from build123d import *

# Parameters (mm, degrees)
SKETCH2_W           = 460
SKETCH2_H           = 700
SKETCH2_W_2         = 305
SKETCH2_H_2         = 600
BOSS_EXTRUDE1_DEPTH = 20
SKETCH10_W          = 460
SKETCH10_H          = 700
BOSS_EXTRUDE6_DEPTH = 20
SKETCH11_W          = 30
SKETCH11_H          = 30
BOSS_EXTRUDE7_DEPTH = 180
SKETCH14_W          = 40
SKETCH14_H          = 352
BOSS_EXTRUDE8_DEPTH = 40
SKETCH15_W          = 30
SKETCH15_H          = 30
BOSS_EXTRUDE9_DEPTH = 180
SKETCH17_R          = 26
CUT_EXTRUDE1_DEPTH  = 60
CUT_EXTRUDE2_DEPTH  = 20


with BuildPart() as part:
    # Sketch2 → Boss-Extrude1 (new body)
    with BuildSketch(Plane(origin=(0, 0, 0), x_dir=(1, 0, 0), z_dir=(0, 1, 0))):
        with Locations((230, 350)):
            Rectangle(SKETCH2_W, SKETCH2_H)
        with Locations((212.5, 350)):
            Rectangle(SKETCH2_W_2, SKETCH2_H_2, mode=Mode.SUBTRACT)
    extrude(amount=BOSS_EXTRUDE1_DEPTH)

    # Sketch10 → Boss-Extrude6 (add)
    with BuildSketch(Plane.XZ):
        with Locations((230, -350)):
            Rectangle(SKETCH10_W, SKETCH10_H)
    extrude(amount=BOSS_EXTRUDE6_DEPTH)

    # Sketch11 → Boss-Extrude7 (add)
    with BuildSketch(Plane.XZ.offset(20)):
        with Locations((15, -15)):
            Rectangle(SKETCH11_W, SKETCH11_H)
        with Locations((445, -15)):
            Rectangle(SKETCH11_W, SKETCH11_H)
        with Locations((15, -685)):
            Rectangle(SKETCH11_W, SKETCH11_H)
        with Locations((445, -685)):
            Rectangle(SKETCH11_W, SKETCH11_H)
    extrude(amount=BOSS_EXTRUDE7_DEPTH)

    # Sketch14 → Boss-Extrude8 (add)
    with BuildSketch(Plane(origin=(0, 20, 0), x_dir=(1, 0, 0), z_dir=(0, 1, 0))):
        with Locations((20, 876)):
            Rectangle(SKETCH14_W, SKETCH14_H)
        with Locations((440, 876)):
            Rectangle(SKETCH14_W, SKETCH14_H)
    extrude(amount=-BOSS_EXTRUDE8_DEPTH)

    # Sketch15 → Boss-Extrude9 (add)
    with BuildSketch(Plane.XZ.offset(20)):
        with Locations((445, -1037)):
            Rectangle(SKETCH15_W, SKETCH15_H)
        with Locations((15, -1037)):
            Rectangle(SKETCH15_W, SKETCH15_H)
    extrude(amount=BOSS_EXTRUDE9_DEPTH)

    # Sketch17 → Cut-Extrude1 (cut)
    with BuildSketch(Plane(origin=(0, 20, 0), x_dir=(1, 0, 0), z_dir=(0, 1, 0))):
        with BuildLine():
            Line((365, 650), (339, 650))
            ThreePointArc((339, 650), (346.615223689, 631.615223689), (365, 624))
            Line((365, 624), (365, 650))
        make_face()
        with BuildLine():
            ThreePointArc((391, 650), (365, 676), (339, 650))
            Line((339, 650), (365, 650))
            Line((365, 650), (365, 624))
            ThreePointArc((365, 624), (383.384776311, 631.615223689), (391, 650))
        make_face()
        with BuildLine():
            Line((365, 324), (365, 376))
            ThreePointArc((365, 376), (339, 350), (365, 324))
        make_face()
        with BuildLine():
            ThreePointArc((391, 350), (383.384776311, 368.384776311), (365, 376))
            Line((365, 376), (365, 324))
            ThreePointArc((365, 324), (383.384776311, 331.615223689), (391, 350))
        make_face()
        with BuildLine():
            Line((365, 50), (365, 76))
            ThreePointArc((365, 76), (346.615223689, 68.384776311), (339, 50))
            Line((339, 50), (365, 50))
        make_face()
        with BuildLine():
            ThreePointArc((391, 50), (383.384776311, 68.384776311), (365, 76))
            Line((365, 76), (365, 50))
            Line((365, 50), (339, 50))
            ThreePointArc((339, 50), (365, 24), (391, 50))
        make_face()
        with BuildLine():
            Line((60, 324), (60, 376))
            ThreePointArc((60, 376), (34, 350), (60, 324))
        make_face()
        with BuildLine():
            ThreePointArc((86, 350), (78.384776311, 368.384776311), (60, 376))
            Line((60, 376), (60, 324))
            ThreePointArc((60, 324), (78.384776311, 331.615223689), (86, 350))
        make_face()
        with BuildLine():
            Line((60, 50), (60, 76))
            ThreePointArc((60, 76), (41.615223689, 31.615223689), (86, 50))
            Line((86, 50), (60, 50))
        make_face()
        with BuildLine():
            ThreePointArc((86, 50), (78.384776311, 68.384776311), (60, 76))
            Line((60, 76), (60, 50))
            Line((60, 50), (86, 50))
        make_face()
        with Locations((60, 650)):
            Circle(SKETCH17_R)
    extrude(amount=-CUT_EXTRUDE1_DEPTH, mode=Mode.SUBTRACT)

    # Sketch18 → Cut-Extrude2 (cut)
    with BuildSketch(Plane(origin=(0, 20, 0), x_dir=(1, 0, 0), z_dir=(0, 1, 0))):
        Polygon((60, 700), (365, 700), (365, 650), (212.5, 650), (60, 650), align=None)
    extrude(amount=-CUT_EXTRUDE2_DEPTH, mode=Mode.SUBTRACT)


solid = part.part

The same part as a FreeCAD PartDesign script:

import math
import FreeCAD as App
import Part
import Sketcher
Q = App.Units.Quantity


def add_polygon(sketch, points):
    """Adds a closed chain of lines whose ends are joined by coincident constraints."""
    first, n = sketch.GeometryCount, len(points)
    for a, b in zip(points, points[1:] + points[:1]):
        sketch.addGeometry(Part.LineSegment(App.Vector(*a, 0), App.Vector(*b, 0)), False)
    for i in range(n):
        sketch.addConstraint(Sketcher.Constraint("Coincident", first + i, 2, first + (i + 1) % n, 1))

doc = App.newDocument("Part")
body = doc.addObject("PartDesign::Body", "Body")

sketch1 = body.newObject("Sketcher::SketchObject", "Sketch")
sketch1.AttachmentSupport = (doc.getObject("XZ_Plane"), [""])
sketch1.MapMode = "FlatFace"
add_polygon(sketch1, [(0, -700), (0, 0), (460, 0), (460, -700)])
add_polygon(sketch1, [(365, -50), (60, -50), (60, -650), (365, -650)])
sketch1.addConstraint(Sketcher.Constraint("Vertical", 0))
sketch1.addConstraint(Sketcher.Constraint("Horizontal", 1))
sketch1.addConstraint(Sketcher.Constraint("Vertical", 2))
sketch1.addConstraint(Sketcher.Constraint("Horizontal", 3))
sketch1.addConstraint(Sketcher.Constraint("Horizontal", 4))
sketch1.addConstraint(Sketcher.Constraint("Vertical", 5))
sketch1.addConstraint(Sketcher.Constraint("Horizontal", 6))
sketch1.addConstraint(Sketcher.Constraint("Vertical", 7))
sketch1.addConstraint(Sketcher.Constraint("Coincident", 0, 2, -1, 1))
sketch1.addConstraint(Sketcher.Constraint("DistanceX", 1, 1, 1, 2, Q("460 mm")))
sketch1.addConstraint(Sketcher.Constraint("DistanceX", 4, 2, 4, 1, Q("305 mm")))
sketch1.addConstraint(Sketcher.Constraint("DistanceY", 0, 1, 0, 2, Q("700 mm")))
sketch1.addConstraint(Sketcher.Constraint("DistanceY", 5, 2, 5, 1, Q("600 mm")))
sketch1.addConstraint(Sketcher.Constraint("DistanceX", -1, 1, 4, 2, Q("60 mm")))
sketch1.addConstraint(Sketcher.Constraint("DistanceY", 4, 2, -1, 1, Q("50 mm")))
pad1 = body.newObject("PartDesign::Pad", "Pad")
pad1.Profile = sketch1
pad1.Length = 20
pad1.Reversed = True

sketch2 = body.newObject("Sketcher::SketchObject", "Sketch001")
sketch2.AttachmentSupport = (doc.getObject("XZ_Plane"), [""])
sketch2.MapMode = "FlatFace"
add_polygon(sketch2, [(0, 0), (0, -700), (460, -700), (460, 0)])
sketch2.addConstraint(Sketcher.Constraint("Vertical", 0))
sketch2.addConstraint(Sketcher.Constraint("Horizontal", 1))
sketch2.addConstraint(Sketcher.Constraint("Vertical", 2))
sketch2.addConstraint(Sketcher.Constraint("Horizontal", 3))
sketch2.addConstraint(Sketcher.Constraint("Coincident", 3, 2, -1, 1))
sketch2.addConstraint(Sketcher.Constraint("DistanceX", 1, 1, 1, 2, Q("460 mm")))
sketch2.addConstraint(Sketcher.Constraint("DistanceY", 0, 2, 0, 1, Q("700 mm")))
pad2 = body.newObject("PartDesign::Pad", "Pad001")
pad2.Profile = sketch2
pad2.Length = 20

sketch3 = body.newObject("Sketcher::SketchObject", "Sketch002")
sketch3.AttachmentSupport = (doc.getObject("XZ_Plane"), [""])
sketch3.MapMode = "FlatFace"
sketch3.AttachmentOffset = App.Placement(App.Vector(0, 0, 20), App.Rotation())
add_polygon(sketch3, [(0, 0), (0, -30), (30, -30), (30, 0)])
add_polygon(sketch3, [(430, 0), (430, -30), (460, -30), (460, 0)])
add_polygon(sketch3, [(0, -670), (0, -700), (30, -700), (30, -670)])
add_polygon(sketch3, [(430, -670), (430, -700), (460, -700), (460, -670)])
sketch3.addConstraint(Sketcher.Constraint("Vertical", 0))
sketch3.addConstraint(Sketcher.Constraint("Horizontal", 1))
sketch3.addConstraint(Sketcher.Constraint("Vertical", 2))
sketch3.addConstraint(Sketcher.Constraint("Horizontal", 3))
sketch3.addConstraint(Sketcher.Constraint("Vertical", 4))
sketch3.addConstraint(Sketcher.Constraint("Horizontal", 5))
sketch3.addConstraint(Sketcher.Constraint("Vertical", 6))
sketch3.addConstraint(Sketcher.Constraint("Horizontal", 7))
sketch3.addConstraint(Sketcher.Constraint("Vertical", 8))
sketch3.addConstraint(Sketcher.Constraint("Horizontal", 9))
sketch3.addConstraint(Sketcher.Constraint("Vertical", 10))
sketch3.addConstraint(Sketcher.Constraint("Horizontal", 11))
sketch3.addConstraint(Sketcher.Constraint("Vertical", 12))
sketch3.addConstraint(Sketcher.Constraint("Horizontal", 13))
sketch3.addConstraint(Sketcher.Constraint("Vertical", 14))
sketch3.addConstraint(Sketcher.Constraint("Horizontal", 15))
sketch3.addConstraint(Sketcher.Constraint("Coincident", 3, 2, -1, 1))
sketch3.addConstraint(Sketcher.Constraint("PointOnObject", 6, 2, -1))
sketch3.addConstraint(Sketcher.Constraint("PointOnObject", 8, 2, -2))
sketch3.addConstraint(Sketcher.Constraint("Horizontal", 1, 2, 4, 2))
sketch3.addConstraint(Sketcher.Constraint("Horizontal", 9, 2, 12, 2))
sketch3.addConstraint(Sketcher.Constraint("Horizontal", 11, 2, 14, 2))
sketch3.addConstraint(Sketcher.Constraint("Vertical", 2, 2, 9, 2))
sketch3.addConstraint(Sketcher.Constraint("Vertical", 7, 2, 12, 2))
sketch3.addConstraint(Sketcher.Constraint("Vertical", 6, 2, 13, 2))
sketch3.addConstraint(Sketcher.Constraint("Equal", 3, 5))
sketch3.addConstraint(Sketcher.Constraint("Equal", 15, 0))
sketch3.addConstraint(Sketcher.Constraint("Equal", 6, 8))
sketch3.addConstraint(Sketcher.Constraint("DistanceX", 1, 1, 1, 2, Q("30 mm")))
sketch3.addConstraint(Sketcher.Constraint("DistanceX", -1, 1, 4, 2, Q("430 mm")))
sketch3.addConstraint(Sketcher.Constraint("DistanceY", 8, 2, -1, 1, Q("700 mm")))
pad3 = body.newObject("PartDesign::Pad", "Pad002")
pad3.Profile = sketch3
pad3.Length = 180

sketch4 = body.newObject("Sketcher::SketchObject", "Sketch003")
sketch4.AttachmentSupport = (doc.getObject("XZ_Plane"), [""])
sketch4.MapMode = "FlatFace"
sketch4.AttachmentOffset = App.Placement(App.Vector(0, 0, -20), App.Rotation())
add_polygon(sketch4, [(0, -1052), (0, -700), (40, -700), (40, -1052)])
add_polygon(sketch4, [(420, -1052), (420, -700), (460, -700), (460, -1052)])
sketch4.addConstraint(Sketcher.Constraint("Vertical", 0))
sketch4.addConstraint(Sketcher.Constraint("Horizontal", 1))
sketch4.addConstraint(Sketcher.Constraint("Vertical", 2))
sketch4.addConstraint(Sketcher.Constraint("Horizontal", 3))
sketch4.addConstraint(Sketcher.Constraint("Vertical", 4))
sketch4.addConstraint(Sketcher.Constraint("Horizontal", 5))
sketch4.addConstraint(Sketcher.Constraint("Vertical", 6))
sketch4.addConstraint(Sketcher.Constraint("Horizontal", 7))
sketch4.addConstraint(Sketcher.Constraint("PointOnObject", 0, 2, -2))
sketch4.addConstraint(Sketcher.Constraint("Horizontal", 1, 2, 4, 2))
sketch4.addConstraint(Sketcher.Constraint("Horizontal", 3, 2, 6, 2))
sketch4.addConstraint(Sketcher.Constraint("Equal", 3, 5))
sketch4.addConstraint(Sketcher.Constraint("DistanceX", 1, 1, 1, 2, Q("40 mm")))
sketch4.addConstraint(Sketcher.Constraint("DistanceY", 0, 1, 0, 2, Q("352 mm")))
sketch4.addConstraint(Sketcher.Constraint("DistanceY", 0, 2, -1, 1, Q("700 mm")))
sketch4.addConstraint(Sketcher.Constraint("DistanceX", -1, 1, 4, 2, Q("420 mm")))
pad4 = body.newObject("PartDesign::Pad", "Pad003")
pad4.Profile = sketch4
pad4.Length = 40

sketch5 = body.newObject("Sketcher::SketchObject", "Sketch004")
sketch5.AttachmentSupport = (doc.getObject("XZ_Plane"), [""])
sketch5.MapMode = "FlatFace"
sketch5.AttachmentOffset = App.Placement(App.Vector(0, 0, 20), App.Rotation())
add_polygon(sketch5, [(430, -1022), (430, -1052), (460, -1052), (460, -1022)])
add_polygon(sketch5, [(0, -1022), (0, -1052), (30, -1052), (30, -1022)])
sketch5.addConstraint(Sketcher.Constraint("Vertical", 0))
sketch5.addConstraint(Sketcher.Constraint("Horizontal", 1))
sketch5.addConstraint(Sketcher.Constraint("Vertical", 2))
sketch5.addConstraint(Sketcher.Constraint("Horizontal", 3))
sketch5.addConstraint(Sketcher.Constraint("Vertical", 4))
sketch5.addConstraint(Sketcher.Constraint("Horizontal", 5))
sketch5.addConstraint(Sketcher.Constraint("Vertical", 6))
sketch5.addConstraint(Sketcher.Constraint("Horizontal", 7))
sketch5.addConstraint(Sketcher.Constraint("PointOnObject", 4, 2, -2))
sketch5.addConstraint(Sketcher.Constraint("Horizontal", 1, 2, 4, 2))
sketch5.addConstraint(Sketcher.Constraint("Horizontal", 3, 2, 6, 2))
sketch5.addConstraint(Sketcher.Constraint("Equal", 3, 5))
sketch5.addConstraint(Sketcher.Constraint("Equal", 7, 0))
sketch5.addConstraint(Sketcher.Constraint("DistanceX", 1, 1, 1, 2, Q("30 mm")))
sketch5.addConstraint(Sketcher.Constraint("DistanceX", -1, 1, 0, 2, Q("430 mm")))
sketch5.addConstraint(Sketcher.Constraint("DistanceY", 0, 2, -1, 1, Q("1052 mm")))
pad5 = body.newObject("PartDesign::Pad", "Pad004")
pad5.Profile = sketch5
pad5.Length = 180

sketch6 = body.newObject("Sketcher::SketchObject", "Sketch005")
sketch6.AttachmentSupport = (doc.getObject("XZ_Plane"), [""])
sketch6.MapMode = "FlatFace"
sketch6.AttachmentOffset = App.Placement(App.Vector(0, 0, -20), App.Rotation())
sketch6.addGeometry(Part.ArcOfCircle(Part.Circle(App.Vector(365, -650, 0), App.Vector(0, 0, 1), 26), math.radians(90), math.radians(180)), False)
sketch6.addGeometry(Part.ArcOfCircle(Part.Circle(App.Vector(365, -650, 0), App.Vector(0, 0, 1), 26), math.radians(0), math.radians(90)), False)
sketch6.addGeometry(Part.ArcOfCircle(Part.Circle(App.Vector(365, -650, 0), App.Vector(0, 0, 1), 26), math.radians(180), math.radians(360)), False)
sketch6.addGeometry(Part.ArcOfCircle(Part.Circle(App.Vector(365, -350, 0), App.Vector(0, 0, 1), 26), math.radians(90), math.radians(270)), False)
sketch6.addGeometry(Part.ArcOfCircle(Part.Circle(App.Vector(365, -350, 0), App.Vector(0, 0, 1), 26), math.radians(0), math.radians(90)), False)
sketch6.addGeometry(Part.ArcOfCircle(Part.Circle(App.Vector(365, -350, 0), App.Vector(0, 0, 1), 26), math.radians(-90), math.radians(0)), False)
sketch6.addGeometry(Part.ArcOfCircle(Part.Circle(App.Vector(365, -50, 0), App.Vector(0, 0, 1), 26), math.radians(180), math.radians(270)), False)
sketch6.addGeometry(Part.ArcOfCircle(Part.Circle(App.Vector(365, -50, 0), App.Vector(0, 0, 1), 26), math.radians(0), math.radians(180)), False)
sketch6.addGeometry(Part.ArcOfCircle(Part.Circle(App.Vector(365, -50, 0), App.Vector(0, 0, 1), 26), math.radians(-90), math.radians(0)), False)
sketch6.addGeometry(Part.ArcOfCircle(Part.Circle(App.Vector(60, -350, 0), App.Vector(0, 0, 1), 26), math.radians(90), math.radians(270)), False)
sketch6.addGeometry(Part.ArcOfCircle(Part.Circle(App.Vector(60, -350, 0), App.Vector(0, 0, 1), 26), math.radians(0), math.radians(90)), False)
sketch6.addGeometry(Part.ArcOfCircle(Part.Circle(App.Vector(60, -350, 0), App.Vector(0, 0, 1), 26), math.radians(-90), math.radians(0)), False)
sketch6.addGeometry(Part.ArcOfCircle(Part.Circle(App.Vector(60, -50, 0), App.Vector(0, 0, 1), 26), math.radians(0), math.radians(270)), False)
sketch6.addGeometry(Part.ArcOfCircle(Part.Circle(App.Vector(60, -50, 0), App.Vector(0, 0, 1), 26), math.radians(-90), math.radians(0)), False)
sketch6.addGeometry(Part.Circle(App.Vector(60, -650, 0), App.Vector(0, 0, 1), 26), False)
sketch6.addConstraint(Sketcher.Constraint("Tangent", 0, 1, 1, 2))
sketch6.addConstraint(Sketcher.Constraint("Tangent", 1, 1, 2, 2))
sketch6.addConstraint(Sketcher.Constraint("Tangent", 2, 1, 0, 2))
sketch6.addConstraint(Sketcher.Constraint("Tangent", 3, 1, 4, 2))
sketch6.addConstraint(Sketcher.Constraint("Tangent", 4, 1, 5, 2))
sketch6.addConstraint(Sketcher.Constraint("Tangent", 5, 1, 3, 2))
sketch6.addConstraint(Sketcher.Constraint("Tangent", 6, 1, 7, 2))
sketch6.addConstraint(Sketcher.Constraint("Tangent", 7, 1, 8, 2))
sketch6.addConstraint(Sketcher.Constraint("Tangent", 8, 1, 6, 2))
sketch6.addConstraint(Sketcher.Constraint("Tangent", 9, 1, 10, 2))
sketch6.addConstraint(Sketcher.Constraint("Tangent", 10, 1, 11, 2))
sketch6.addConstraint(Sketcher.Constraint("Tangent", 11, 1, 9, 2))
sketch6.addConstraint(Sketcher.Constraint("Tangent", 12, 1, 13, 2))
sketch6.addConstraint(Sketcher.Constraint("Coincident", 13, 1, 12, 2))
sketch6.addConstraint(Sketcher.Constraint("Equal", 2, 3))
sketch6.addConstraint(Sketcher.Constraint("Equal", 5, 6))
sketch6.addConstraint(Sketcher.Constraint("Equal", 8, 9))
sketch6.addConstraint(Sketcher.Constraint("Equal", 11, 12))
sketch6.addConstraint(Sketcher.Constraint("Equal", 13, 14))
sketch6.addConstraint(Sketcher.Constraint("Horizontal", 5, 3, 9, 3))
sketch6.addConstraint(Sketcher.Constraint("Horizontal", 8, 3, 12, 3))
sketch6.addConstraint(Sketcher.Constraint("Horizontal", 2, 3, 14, 3))
sketch6.addConstraint(Sketcher.Constraint("Horizontal", 14, 3, 1, 1))
sketch6.addConstraint(Sketcher.Constraint("Horizontal", 1, 1, 2, 1))
sketch6.addConstraint(Sketcher.Constraint("Horizontal", 11, 3, 4, 1))
sketch6.addConstraint(Sketcher.Constraint("Horizontal", 13, 3, 6, 1))
sketch6.addConstraint(Sketcher.Constraint("Horizontal", 6, 1, 7, 1))
sketch6.addConstraint(Sketcher.Constraint("Horizontal", 4, 1, 10, 1))
sketch6.addConstraint(Sketcher.Constraint("Horizontal", 7, 1, 12, 1))
sketch6.addConstraint(Sketcher.Constraint("Vertical", 2, 3, 3, 3))
sketch6.addConstraint(Sketcher.Constraint("Vertical", 5, 3, 6, 3))
sketch6.addConstraint(Sketcher.Constraint("Vertical", 11, 3, 12, 3))
sketch6.addConstraint(Sketcher.Constraint("Vertical", 13, 3, 14, 3))
sketch6.addConstraint(Sketcher.Constraint("Vertical", 8, 3, 0, 1))
sketch6.addConstraint(Sketcher.Constraint("Vertical", 0, 1, 3, 1))
sketch6.addConstraint(Sketcher.Constraint("Vertical", 3, 1, 5, 1))
sketch6.addConstraint(Sketcher.Constraint("Vertical", 5, 1, 8, 1))
sketch6.addConstraint(Sketcher.Constraint("Vertical", 14, 3, 9, 1))
sketch6.addConstraint(Sketcher.Constraint("Vertical", 9, 1, 11, 1))
sketch6.addConstraint(Sketcher.Constraint("Vertical", 11, 1, 13, 1))
sketch6.addConstraint(Sketcher.Constraint("Diameter", 14, Q("52 mm")))
sketch6.addConstraint(Sketcher.Constraint("DistanceX", -1, 1, 0, 3, Q("365 mm")))
sketch6.addConstraint(Sketcher.Constraint("DistanceY", 0, 3, -1, 1, Q("650 mm")))
sketch6.addConstraint(Sketcher.Constraint("DistanceY", 3, 3, -1, 1, Q("350 mm")))
sketch6.addConstraint(Sketcher.Constraint("DistanceY", 6, 3, -1, 1, Q("50 mm")))
sketch6.addConstraint(Sketcher.Constraint("DistanceX", -1, 1, 9, 3, Q("60 mm")))
pocket1 = body.newObject("PartDesign::Pocket", "Pocket")
pocket1.Profile = sketch6
pocket1.Length = 60
pocket1.Reversed = True

sketch7 = body.newObject("Sketcher::SketchObject", "Sketch006")
sketch7.AttachmentSupport = (doc.getObject("XZ_Plane"), [""])
sketch7.MapMode = "FlatFace"
sketch7.AttachmentOffset = App.Placement(App.Vector(0, 0, -20), App.Rotation())
add_polygon(sketch7, [(365, -700), (60, -700), (60, -650), (365, -650)])
sketch7.addConstraint(Sketcher.Constraint("Horizontal", 0))
sketch7.addConstraint(Sketcher.Constraint("Vertical", 1))
sketch7.addConstraint(Sketcher.Constraint("Horizontal", 2))
sketch7.addConstraint(Sketcher.Constraint("Vertical", 3))
sketch7.addConstraint(Sketcher.Constraint("DistanceX", 0, 2, 0, 1, Q("305 mm")))
sketch7.addConstraint(Sketcher.Constraint("DistanceY", 1, 1, 1, 2, Q("50 mm")))
sketch7.addConstraint(Sketcher.Constraint("DistanceX", -1, 1, 0, 2, Q("60 mm")))
sketch7.addConstraint(Sketcher.Constraint("DistanceY", 0, 2, -1, 1, Q("700 mm")))
pocket2 = body.newObject("PartDesign::Pocket", "Pocket001")
pocket2.Profile = sketch7
pocket2.Length = 20
pocket2.Reversed = True

doc.recompute()
